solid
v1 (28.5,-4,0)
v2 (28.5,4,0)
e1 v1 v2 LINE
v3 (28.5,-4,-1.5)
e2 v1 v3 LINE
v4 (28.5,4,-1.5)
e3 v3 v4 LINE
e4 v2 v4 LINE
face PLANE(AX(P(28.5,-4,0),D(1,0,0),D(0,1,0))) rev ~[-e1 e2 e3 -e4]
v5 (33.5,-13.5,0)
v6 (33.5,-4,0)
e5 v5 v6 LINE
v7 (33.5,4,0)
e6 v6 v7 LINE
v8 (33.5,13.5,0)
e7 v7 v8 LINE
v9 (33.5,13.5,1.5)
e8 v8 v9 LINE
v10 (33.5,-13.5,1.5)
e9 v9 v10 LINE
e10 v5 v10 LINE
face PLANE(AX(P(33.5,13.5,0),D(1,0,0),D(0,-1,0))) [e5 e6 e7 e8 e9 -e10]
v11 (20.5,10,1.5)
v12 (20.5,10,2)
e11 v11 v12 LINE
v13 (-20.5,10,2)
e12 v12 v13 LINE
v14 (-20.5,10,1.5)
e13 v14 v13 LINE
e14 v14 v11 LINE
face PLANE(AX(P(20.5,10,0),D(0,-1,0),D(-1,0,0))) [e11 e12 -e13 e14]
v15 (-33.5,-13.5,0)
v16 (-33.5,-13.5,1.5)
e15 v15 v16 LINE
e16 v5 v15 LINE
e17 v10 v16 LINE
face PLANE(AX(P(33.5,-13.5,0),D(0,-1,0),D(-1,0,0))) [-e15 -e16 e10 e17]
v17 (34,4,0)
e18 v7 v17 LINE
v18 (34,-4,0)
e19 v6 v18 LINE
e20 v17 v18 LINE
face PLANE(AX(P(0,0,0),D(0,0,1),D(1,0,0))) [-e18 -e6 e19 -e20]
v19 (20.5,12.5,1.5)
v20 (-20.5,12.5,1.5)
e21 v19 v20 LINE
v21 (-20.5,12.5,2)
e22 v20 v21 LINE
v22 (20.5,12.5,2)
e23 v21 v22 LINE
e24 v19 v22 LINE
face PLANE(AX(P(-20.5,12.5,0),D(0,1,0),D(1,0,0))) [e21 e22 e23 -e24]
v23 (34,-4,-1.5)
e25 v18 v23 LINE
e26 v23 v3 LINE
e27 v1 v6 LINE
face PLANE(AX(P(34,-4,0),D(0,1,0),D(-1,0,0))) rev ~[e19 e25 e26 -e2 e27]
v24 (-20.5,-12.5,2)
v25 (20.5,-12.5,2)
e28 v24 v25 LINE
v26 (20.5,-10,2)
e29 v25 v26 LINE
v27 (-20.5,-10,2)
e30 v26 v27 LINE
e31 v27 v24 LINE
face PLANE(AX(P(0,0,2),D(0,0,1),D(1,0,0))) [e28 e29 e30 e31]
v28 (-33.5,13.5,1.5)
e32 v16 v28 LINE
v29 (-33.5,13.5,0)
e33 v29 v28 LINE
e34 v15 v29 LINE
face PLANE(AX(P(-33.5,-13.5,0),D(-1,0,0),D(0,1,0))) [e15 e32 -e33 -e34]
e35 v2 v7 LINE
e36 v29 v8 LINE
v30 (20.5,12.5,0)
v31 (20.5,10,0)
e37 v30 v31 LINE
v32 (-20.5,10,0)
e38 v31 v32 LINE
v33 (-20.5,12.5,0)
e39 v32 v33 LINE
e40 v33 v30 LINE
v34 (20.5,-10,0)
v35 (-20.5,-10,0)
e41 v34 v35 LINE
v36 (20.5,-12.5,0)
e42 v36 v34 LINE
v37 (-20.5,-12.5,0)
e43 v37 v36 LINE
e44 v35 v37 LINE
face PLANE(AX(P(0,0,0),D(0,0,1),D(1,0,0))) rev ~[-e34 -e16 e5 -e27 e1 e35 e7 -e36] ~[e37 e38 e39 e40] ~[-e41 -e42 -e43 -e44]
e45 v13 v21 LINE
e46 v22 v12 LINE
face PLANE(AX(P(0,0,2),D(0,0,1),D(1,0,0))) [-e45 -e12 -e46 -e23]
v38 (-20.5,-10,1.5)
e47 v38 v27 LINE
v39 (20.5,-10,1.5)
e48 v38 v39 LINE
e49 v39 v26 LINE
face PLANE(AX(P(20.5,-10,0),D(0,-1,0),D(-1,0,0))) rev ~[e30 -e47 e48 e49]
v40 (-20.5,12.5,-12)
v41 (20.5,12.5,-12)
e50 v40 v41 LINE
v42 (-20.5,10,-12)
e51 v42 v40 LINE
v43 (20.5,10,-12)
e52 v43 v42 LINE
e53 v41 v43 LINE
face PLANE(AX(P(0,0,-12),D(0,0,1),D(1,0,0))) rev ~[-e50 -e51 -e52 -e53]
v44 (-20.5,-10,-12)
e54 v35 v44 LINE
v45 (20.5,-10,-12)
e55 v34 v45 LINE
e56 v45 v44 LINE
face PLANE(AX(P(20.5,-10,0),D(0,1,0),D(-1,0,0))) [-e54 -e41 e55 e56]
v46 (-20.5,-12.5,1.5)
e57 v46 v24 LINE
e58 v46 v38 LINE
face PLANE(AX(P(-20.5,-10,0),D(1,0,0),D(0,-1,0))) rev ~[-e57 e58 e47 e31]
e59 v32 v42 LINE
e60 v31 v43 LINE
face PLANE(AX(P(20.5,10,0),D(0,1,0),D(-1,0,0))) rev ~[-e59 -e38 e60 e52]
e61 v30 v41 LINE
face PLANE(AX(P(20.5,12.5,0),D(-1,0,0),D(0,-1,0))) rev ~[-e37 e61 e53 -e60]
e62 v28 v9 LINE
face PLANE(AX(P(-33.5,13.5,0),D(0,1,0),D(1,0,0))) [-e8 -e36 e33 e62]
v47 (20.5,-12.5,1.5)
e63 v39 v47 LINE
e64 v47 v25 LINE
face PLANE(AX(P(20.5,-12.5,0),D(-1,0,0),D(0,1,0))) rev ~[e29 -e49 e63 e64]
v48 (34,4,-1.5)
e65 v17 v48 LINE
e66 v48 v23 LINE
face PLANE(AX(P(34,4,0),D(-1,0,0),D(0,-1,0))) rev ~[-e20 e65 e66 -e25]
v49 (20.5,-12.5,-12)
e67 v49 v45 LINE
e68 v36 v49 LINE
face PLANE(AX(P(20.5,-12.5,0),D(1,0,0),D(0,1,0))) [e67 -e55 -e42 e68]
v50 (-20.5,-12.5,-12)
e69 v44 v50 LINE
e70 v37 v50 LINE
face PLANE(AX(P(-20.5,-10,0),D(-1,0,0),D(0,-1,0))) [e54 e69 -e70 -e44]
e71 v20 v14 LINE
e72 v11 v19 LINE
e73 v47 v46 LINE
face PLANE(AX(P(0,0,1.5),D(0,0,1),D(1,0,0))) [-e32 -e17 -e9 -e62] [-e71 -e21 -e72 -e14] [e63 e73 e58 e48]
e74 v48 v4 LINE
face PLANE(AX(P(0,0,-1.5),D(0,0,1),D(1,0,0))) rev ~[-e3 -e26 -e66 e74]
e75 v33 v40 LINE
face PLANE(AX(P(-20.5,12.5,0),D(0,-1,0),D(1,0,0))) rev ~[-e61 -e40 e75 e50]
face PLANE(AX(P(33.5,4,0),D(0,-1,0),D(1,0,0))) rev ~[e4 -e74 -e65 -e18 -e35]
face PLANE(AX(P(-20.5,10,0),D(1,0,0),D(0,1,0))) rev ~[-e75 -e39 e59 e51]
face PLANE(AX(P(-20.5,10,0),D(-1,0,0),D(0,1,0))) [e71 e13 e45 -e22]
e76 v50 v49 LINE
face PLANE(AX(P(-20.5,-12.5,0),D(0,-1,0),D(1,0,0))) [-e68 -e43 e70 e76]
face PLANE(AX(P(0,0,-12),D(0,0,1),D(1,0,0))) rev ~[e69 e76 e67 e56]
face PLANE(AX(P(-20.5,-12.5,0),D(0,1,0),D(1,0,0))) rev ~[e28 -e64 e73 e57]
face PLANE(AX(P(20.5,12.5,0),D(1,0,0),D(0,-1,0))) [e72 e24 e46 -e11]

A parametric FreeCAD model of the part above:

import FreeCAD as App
import Part
import Sketcher
from FreeCAD import Vector

doc = App.newDocument("Part")
body = doc.addObject("PartDesign::Body", "Body")

# Sketch on XY plane
sketch1 = body.newObject("Sketcher::SketchObject", "Sketch")
sketch1.AttachmentSupport = (doc.getObject("XY_Plane"), [""])
sketch1.MapMode = "FlatFace"
sketch1.addGeometry([
    Part.LineSegment(Vector(34, 14, 0), Vector(-34, 14, 0)),
    Part.LineSegment(Vector(-34, 14, 0), Vector(-34, -14, 0)),
    Part.LineSegment(Vector(-34, -14, 0), Vector(34, -14, 0)),
    Part.LineSegment(Vector(34, -14, 0), Vector(34, 14, 0)),
], False)
sketch1.addConstraint([
    Sketcher.Constraint("Coincident", 0, 2, 1, 1),
    Sketcher.Constraint("Coincident", 1, 2, 2, 1),
    Sketcher.Constraint("Coincident", 2, 2, 3, 1),
    Sketcher.Constraint("Coincident", 3, 2, 0, 1),
    Sketcher.Constraint("Horizontal", 0),
    Sketcher.Constraint("Vertical", 1),
    Sketcher.Constraint("Horizontal", 2),
    Sketcher.Constraint("Vertical", 3),
    Sketcher.Constraint("Symmetric", 0, 2, 2, 2, -1, 1),
    Sketcher.Constraint("DistanceX", 0, 2, 0, 1, 67.0),
    Sketcher.Constraint("DistanceY", 1, 2, 1, 1, 27.0),
])
pad1 = body.newObject("PartDesign::Pad", "Pad")
pad1.Profile = sketch1
pad1.Length = 1.5

# Sketch on XY plane
sketch2 = body.newObject("Sketcher::SketchObject", "Sketch001")
sketch2.AttachmentSupport = (doc.getObject("XY_Plane"), [""])
sketch2.MapMode = "FlatFace"
sketch2.addGeometry([
    Part.LineSegment(Vector(34, 4, 0), Vector(28, 4, 0)),
    Part.LineSegment(Vector(28, 4, 0), Vector(28, -4, 0)),
    Part.LineSegment(Vector(28, -4, 0), Vector(34, -4, 0)),
    Part.LineSegment(Vector(34, -4, 0), Vector(34, 4, 0)),
], False)
sketch2.addConstraint([
    Sketcher.Constraint("Coincident", 0, 2, 1, 1),
    Sketcher.Constraint("Coincident", 1, 2, 2, 1),
    Sketcher.Constraint("Coincident", 2, 2, 3, 1),
    Sketcher.Constraint("Coincident", 3, 2, 0, 1),
    Sketcher.Constraint("Horizontal", 0),
    Sketcher.Constraint("Vertical", 1),
    Sketcher.Constraint("Horizontal", 2),
    Sketcher.Constraint("Vertical", 3),
    Sketcher.Constraint("DistanceY", 1, 2, 1, 1, 8.0),
    Sketcher.Constraint("DistanceX", 0, 2, 0, 1, 5.5),
    Sketcher.Constraint("DistanceY", -1, 1, 0, 2, 4.0),
    Sketcher.Constraint("DistanceX", -1, 1, 2, 2, 34.0),
])
pad2 = body.newObject("PartDesign::Pad", "Pad001")
pad2.Profile = sketch2
pad2.Length = 1.5
pad2.Reversed = True

# Sketch on XY plane
sketch3 = body.newObject("Sketcher::SketchObject", "Sketch002")
sketch3.AttachmentSupport = (doc.getObject("XY_Plane"), [""])
sketch3.MapMode = "FlatFace"
sketch3.addGeometry([
    Part.LineSegment(Vector(20.5, 12.5, 0), Vector(-20.5, 12.5, 0)),  # 0
    Part.LineSegment(Vector(-20.5, 12.5, 0), Vector(-20.5, 10, 0)),  # 1
    Part.LineSegment(Vector(-20.5, 10, 0), Vector(20.5, 10, 0)),  # 2
    Part.LineSegment(Vector(20.5, 10, 0), Vector(20.5, 12.5, 0)),  # 3
    Part.LineSegment(Vector(-20.5, -10, 0), Vector(-20.5, -12.5, 0)),  # 4
    Part.LineSegment(Vector(-20.5, -12.5, 0), Vector(20.5, -12.5, 0)),  # 5
    Part.LineSegment(Vector(20.5, -12.5, 0), Vector(20.5, -10, 0)),  # 6
    Part.LineSegment(Vector(20.5, -10, 0), Vector(-20.5, -10, 0)),  # 7
], False)
sketch3.addConstraint([
    Sketcher.Constraint("Coincident", 0, 2, 1, 1),
    Sketcher.Constraint("Coincident", 1, 2, 2, 1),
    Sketcher.Constraint("Coincident", 2, 2, 3, 1),
    Sketcher.Constraint("Coincident", 3, 2, 0, 1),
    Sketcher.Constraint("Coincident", 4, 2, 5, 1),
    Sketcher.Constraint("Coincident", 5, 2, 6, 1),
    Sketcher.Constraint("Coincident", 6, 2, 7, 1),
    Sketcher.Constraint("Coincident", 7, 2, 4, 1),
    Sketcher.Constraint("Horizontal", 0),
    Sketcher.Constraint("Vertical", 1),
    Sketcher.Constraint("Horizontal", 2),
    Sketcher.Constraint("Vertical", 3),
    Sketcher.Constraint("Vertical", 4),
    Sketcher.Constraint("Horizontal", 5),
    Sketcher.Constraint("Vertical", 6),
    Sketcher.Constraint("Horizontal", 7),
    Sketcher.Constraint("Symmetric", 3, 2, 4, 2, -1, 1),
    Sketcher.Constraint("Symmetric", 1, 2, 6, 2, -1, 1),
    Sketcher.Constraint("Vertical", 1, 2, 4, 2),
    Sketcher.Constraint("DistanceX", 0, 2, 0, 1, 41.0),
    Sketcher.Constraint("DistanceY", 1, 2, 1, 1, 2.5),
    Sketcher.Constraint("DistanceY", -1, 1, 1, 2, 10.0),
])
pad3 = body.newObject("PartDesign::Pad", "Pad002")
pad3.Profile = sketch3
pad3.Length = 12
pad3.Reversed = True

# Sketch on XY plane
sketch4 = body.newObject("Sketcher::SketchObject", "Sketch003")
sketch4.AttachmentSupport = (doc.getObject("XY_Plane"), [""])
sketch4.MapMode = "FlatFace"
sketch4.addGeometry([
    Part.LineSegment(Vector(20.5, 12.5, 0), Vector(-20.5, 12.5, 0)),  # 0
    Part.LineSegment(Vector(-20.5, 12.5, 0), Vector(-20.5, 10, 0)),  # 1
    Part.LineSegment(Vector(-20.5, 10, 0), Vector(20.5, 10, 0)),  # 2
    Part.LineSegment(Vector(20.5, 10, 0), Vector(20.5, 12.5, 0)),  # 3
    Part.LineSegment(Vector(-20.5, -10, 0), Vector(-20.5, -12.5, 0)),  # 4
    Part.LineSegment(Vector(-20.5, -12.5, 0), Vector(20.5, -12.5, 0)),  # 5
    Part.LineSegment(Vector(20.5, -12.5, 0), Vector(20.5, -10, 0)),  # 6
    Part.LineSegment(Vector(20.5, -10, 0), Vector(-20.5, -10, 0)),  # 7
], False)
sketch4.addConstraint([
    Sketcher.Constraint("Coincident", 0, 2, 1, 1),
    Sketcher.Constraint("Coincident", 1, 2, 2, 1),
    Sketcher.Constraint("Coincident", 2, 2, 3, 1),
    Sketcher.Constraint("Coincident", 3, 2, 0, 1),
    Sketcher.Constraint("Coincident", 4, 2, 5, 1),
    Sketcher.Constraint("Coincident", 5, 2, 6, 1),
    Sketcher.Constraint("Coincident", 6, 2, 7, 1),
    Sketcher.Constraint("Coincident", 7, 2, 4, 1),
    Sketcher.Constraint("Horizontal", 0),
    Sketcher.Constraint("Vertical", 1),
    Sketcher.Constraint("Horizontal", 2),
    Sketcher.Constraint("Vertical", 3),
    Sketcher.Constraint("Vertical", 4),
    Sketcher.Constraint("Horizontal", 5),
    Sketcher.Constraint("Vertical", 6),
    Sketcher.Constraint("Horizontal", 7),
    Sketcher.Constraint("Symmetric", 3, 2, 4, 2, -1, 1),
    Sketcher.Constraint("Symmetric", 1, 2, 6, 2, -1, 1),
    Sketcher.Constraint("Vertical", 1, 2, 4, 2),
    Sketcher.Constraint("DistanceX", 0, 2, 0, 1, 41.0),
    Sketcher.Constraint("DistanceY", 1, 2, 1, 1, 2.5),
    Sketcher.Constraint("DistanceY", -1, 1, 1, 2, 10.0),
])
pad4 = body.newObject("PartDesign::Pad", "Pad003")
pad4.Profile = sketch4
pad4.Length = 2

doc.recompute()
